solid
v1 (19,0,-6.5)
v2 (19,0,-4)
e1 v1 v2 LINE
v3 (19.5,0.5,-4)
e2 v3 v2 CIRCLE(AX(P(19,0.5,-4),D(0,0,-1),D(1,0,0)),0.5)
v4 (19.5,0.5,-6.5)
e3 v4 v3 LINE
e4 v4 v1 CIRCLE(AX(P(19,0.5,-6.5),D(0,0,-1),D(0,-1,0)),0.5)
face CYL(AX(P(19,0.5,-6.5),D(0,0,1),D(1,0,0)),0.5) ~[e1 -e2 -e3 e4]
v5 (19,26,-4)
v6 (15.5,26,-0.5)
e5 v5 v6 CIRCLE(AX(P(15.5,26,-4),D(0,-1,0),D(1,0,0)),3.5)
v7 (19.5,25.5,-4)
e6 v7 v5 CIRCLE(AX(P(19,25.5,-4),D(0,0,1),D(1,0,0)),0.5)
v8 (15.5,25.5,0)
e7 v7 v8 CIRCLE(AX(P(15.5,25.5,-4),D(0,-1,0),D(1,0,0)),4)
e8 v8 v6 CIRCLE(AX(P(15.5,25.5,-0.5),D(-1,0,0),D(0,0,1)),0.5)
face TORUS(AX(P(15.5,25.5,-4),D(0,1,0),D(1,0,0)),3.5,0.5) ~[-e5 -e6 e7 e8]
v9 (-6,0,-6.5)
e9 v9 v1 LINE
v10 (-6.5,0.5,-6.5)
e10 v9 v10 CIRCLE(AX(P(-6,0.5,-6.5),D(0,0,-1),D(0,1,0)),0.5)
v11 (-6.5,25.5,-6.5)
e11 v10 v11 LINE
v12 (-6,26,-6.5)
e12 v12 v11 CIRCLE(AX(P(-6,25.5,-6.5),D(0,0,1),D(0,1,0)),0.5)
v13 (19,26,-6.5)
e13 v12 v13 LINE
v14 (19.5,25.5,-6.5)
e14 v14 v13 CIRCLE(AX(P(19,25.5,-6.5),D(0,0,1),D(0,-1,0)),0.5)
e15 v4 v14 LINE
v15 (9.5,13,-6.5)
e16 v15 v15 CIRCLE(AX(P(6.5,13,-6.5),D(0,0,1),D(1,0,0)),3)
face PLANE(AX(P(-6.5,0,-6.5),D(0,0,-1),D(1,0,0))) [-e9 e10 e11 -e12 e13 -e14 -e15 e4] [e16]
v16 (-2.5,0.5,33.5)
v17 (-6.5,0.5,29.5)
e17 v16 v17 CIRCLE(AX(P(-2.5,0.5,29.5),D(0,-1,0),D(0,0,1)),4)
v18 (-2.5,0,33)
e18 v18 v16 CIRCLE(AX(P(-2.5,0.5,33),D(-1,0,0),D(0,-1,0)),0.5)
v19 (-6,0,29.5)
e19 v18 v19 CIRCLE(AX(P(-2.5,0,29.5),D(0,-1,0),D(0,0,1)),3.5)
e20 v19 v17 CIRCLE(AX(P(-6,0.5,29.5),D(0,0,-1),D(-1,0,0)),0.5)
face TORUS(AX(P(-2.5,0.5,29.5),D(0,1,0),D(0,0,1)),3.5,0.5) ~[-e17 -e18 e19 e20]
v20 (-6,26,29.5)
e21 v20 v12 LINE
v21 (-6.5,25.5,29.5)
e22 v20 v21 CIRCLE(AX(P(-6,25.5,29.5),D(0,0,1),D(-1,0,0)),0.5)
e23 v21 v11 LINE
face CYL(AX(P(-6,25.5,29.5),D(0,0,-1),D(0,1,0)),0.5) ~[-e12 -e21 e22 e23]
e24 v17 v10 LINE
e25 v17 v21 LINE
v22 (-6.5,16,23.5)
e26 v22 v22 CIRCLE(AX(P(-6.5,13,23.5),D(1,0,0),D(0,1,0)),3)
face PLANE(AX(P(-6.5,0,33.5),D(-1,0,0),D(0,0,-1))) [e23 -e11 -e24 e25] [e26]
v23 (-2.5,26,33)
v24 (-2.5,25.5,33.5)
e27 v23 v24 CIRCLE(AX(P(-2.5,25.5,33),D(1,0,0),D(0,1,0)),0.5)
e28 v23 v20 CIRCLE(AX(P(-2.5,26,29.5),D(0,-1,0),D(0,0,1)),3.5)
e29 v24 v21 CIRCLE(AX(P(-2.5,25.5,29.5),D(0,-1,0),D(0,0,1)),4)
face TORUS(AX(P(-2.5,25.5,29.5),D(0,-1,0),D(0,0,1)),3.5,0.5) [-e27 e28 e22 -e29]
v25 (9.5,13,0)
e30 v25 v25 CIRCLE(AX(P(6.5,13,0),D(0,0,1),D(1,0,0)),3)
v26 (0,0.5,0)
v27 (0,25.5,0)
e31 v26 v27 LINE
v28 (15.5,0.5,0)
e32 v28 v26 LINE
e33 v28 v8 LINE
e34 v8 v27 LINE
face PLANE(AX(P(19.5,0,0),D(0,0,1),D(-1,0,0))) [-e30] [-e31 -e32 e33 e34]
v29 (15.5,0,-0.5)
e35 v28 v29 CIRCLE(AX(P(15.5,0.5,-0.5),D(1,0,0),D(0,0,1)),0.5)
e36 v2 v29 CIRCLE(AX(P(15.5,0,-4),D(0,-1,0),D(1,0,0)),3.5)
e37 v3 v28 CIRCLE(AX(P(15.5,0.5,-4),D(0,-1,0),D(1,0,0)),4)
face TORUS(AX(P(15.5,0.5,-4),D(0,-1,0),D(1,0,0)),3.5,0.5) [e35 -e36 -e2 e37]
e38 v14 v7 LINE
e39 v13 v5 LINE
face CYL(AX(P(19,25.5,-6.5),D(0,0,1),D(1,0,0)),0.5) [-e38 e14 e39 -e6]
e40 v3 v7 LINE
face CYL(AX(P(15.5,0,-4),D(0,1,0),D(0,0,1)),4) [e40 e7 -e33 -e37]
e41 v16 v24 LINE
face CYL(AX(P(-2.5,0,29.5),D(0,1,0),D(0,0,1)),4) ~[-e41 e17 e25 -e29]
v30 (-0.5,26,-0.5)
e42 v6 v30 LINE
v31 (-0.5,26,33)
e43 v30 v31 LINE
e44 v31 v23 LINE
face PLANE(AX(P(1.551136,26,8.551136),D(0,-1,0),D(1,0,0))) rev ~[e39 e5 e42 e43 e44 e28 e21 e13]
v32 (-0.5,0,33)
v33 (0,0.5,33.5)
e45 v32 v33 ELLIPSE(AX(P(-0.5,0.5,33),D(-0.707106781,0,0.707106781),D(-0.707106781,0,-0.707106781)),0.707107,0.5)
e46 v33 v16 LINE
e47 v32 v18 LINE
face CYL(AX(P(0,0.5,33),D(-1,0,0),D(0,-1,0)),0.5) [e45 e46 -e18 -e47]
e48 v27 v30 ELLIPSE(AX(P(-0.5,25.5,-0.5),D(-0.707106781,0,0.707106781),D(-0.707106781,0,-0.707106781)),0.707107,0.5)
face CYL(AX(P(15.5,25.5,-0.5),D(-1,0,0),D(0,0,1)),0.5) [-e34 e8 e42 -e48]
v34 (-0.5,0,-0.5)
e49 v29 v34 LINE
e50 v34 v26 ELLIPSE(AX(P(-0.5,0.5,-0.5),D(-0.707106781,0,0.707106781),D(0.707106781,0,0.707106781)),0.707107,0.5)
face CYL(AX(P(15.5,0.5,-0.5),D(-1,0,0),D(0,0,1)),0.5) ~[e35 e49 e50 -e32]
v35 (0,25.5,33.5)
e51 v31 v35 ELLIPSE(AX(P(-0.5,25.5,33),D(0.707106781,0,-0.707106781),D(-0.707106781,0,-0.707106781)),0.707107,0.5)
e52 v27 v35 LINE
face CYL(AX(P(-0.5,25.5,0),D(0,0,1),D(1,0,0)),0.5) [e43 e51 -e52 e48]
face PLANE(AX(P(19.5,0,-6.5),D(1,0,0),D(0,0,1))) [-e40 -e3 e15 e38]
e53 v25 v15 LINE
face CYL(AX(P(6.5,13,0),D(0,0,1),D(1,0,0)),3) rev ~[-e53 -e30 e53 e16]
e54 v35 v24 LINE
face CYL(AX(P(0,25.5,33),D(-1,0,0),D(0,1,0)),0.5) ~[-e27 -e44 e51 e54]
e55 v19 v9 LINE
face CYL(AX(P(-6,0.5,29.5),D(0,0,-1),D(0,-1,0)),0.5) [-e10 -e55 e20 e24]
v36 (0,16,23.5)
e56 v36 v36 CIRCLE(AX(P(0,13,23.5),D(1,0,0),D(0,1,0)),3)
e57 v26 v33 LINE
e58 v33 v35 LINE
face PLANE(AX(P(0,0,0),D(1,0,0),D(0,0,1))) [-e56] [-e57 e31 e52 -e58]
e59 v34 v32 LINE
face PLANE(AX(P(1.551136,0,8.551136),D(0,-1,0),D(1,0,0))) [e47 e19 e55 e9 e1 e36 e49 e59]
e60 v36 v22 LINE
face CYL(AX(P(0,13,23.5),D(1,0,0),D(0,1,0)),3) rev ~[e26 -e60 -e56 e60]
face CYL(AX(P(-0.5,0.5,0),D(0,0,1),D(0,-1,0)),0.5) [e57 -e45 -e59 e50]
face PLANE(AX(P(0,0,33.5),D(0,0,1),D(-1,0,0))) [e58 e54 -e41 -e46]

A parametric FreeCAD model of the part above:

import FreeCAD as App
import Part
import Sketcher
from FreeCAD import Vector


def edges_at(feature, points):
    """Names of the edges that pass closest to the given points."""
    edges = feature.Shape.Edges
    near = lambda p: min(range(len(edges)), key=lambda i: edges[i].distToShape(Part.Vertex(*p))[0])
    return sorted({f"Edge{near(p) + 1}" for p in points})


def add_polygon(sketch, points):
    """Adds a closed chain of lines whose ends are joined by coincident constraints."""
    first, n = sketch.GeometryCount, len(points)
    for a, b in zip(points, points[1:] + points[:1]):
        sketch.addGeometry(Part.LineSegment(App.Vector(*a, 0), App.Vector(*b, 0)), False)
    for i in range(n):
        sketch.addConstraint(Sketcher.Constraint("Coincident", first + i, 2, first + (i + 1) % n, 1))

doc = App.newDocument("Part")
params = doc.addObject("Spreadsheet::Sheet", "Params")
for row, (alias, value) in enumerate([
    ("sketch1_width", "26 mm"),
    ("sketch1_height", "40 mm"),
    ("sketch1_width2", "6.5 mm"),
    ("pad1_length", "26 mm"),
    ("sketch2_diameter", "6 mm"),
    ("pocket1_length", "25 mm"),
    ("sketch3_diameter", "6 mm"),
    ("pocket2_length", "25 mm"),
    ("fillet_radius", "4 mm"),
    ("fillet2_radius", "0.5 mm"),
], start=1):
    params.set(f"A{row}", alias)
    params.set(f"B{row}", "=" + value)
    params.setAlias(f"B{row}", alias)

body = doc.addObject("PartDesign::Body", "Body")

sketch1 = doc.addObject("Sketcher::SketchObject", "Sketch")
body.addObject(sketch1)
sketch1.AttachmentSupport = (doc.XZ_Plane, [""])
sketch1.MapMode = "FlatFace"
add_polygon(sketch1, [(0, 0), (0, 34), (-6, 34), (-6, -6), (20, -6), (20, 0)])
sketch1.addConstraint([
    Sketcher.Constraint("Vertical", 0),
    Sketcher.Constraint("Horizontal", 1),
    Sketcher.Constraint("Vertical", 2),
    Sketcher.Constraint("Horizontal", 3),
    Sketcher.Constraint("Vertical", 4),
    Sketcher.Constraint("Horizontal", 5),
    Sketcher.Constraint("Coincident", 5, 2, -1, 1),
    Sketcher.Constraint("Equal", 1, 4),
    Sketcher.Constraint("DistanceX", 3, 1, 3, 2, 26.0),
    Sketcher.Constraint("DistanceY", 2, 2, 2, 1, 40.0),
    Sketcher.Constraint("DistanceX", 1, 2, 1, 1, 6.5),
])
sketch1.setExpression("Constraints[14]", "Params.sketch1_width")
sketch1.setExpression("Constraints[15]", "Params.sketch1_height")
sketch1.setExpression("Constraints[16]", "Params.sketch1_width2")
pad1 = doc.addObject("PartDesign::Pad", "Pad")
body.addObject(pad1)
pad1.Profile = sketch1
pad1.setExpression("Length", "Params.pad1_length")
pad1.Reversed = True

sketch2 = doc.addObject("Sketcher::SketchObject", "Sketch001")
body.addObject(sketch2)
sketch2.AttachmentSupport = (doc.YZ_Plane, [""])
sketch2.MapMode = "FlatFace"
sketch2.addGeometry(Part.Circle(Vector(13, 23.5, 0), Vector(0, 0, 1), 3), False)
sketch2.addConstraint([
    Sketcher.Constraint("Diameter", 0, 6.0),
    Sketcher.Constraint("DistanceX", -1, 1, 0, 3, 13.0),
    Sketcher.Constraint("DistanceY", -1, 1, 0, 3, 23.5),
])
sketch2.setExpression("Constraints[0]", "Params.sketch2_diameter")
pocket1 = doc.addObject("PartDesign::Pocket", "Pocket")
body.addObject(pocket1)
pocket1.Profile = sketch2
pocket1.setExpression("Length", "Params.pocket1_length")

sketch3 = doc.addObject("Sketcher::SketchObject", "Sketch002")
body.addObject(sketch3)
sketch3.AttachmentSupport = (doc.XY_Plane, [""])
sketch3.MapMode = "FlatFace"
sketch3.addGeometry(Part.Circle(Vector(6.5, 13, 0), Vector(0, 0, 1), 3), False)
sketch3.addConstraint([
    Sketcher.Constraint("Diameter", 0, 6.0),
    Sketcher.Constraint("DistanceY", -1, 1, 0, 3, 13.0),
    Sketcher.Constraint("DistanceX", -1, 1, 0, 3, 6.5),
])
sketch3.setExpression("Constraints[0]", "Params.sketch3_diameter")
pocket2 = doc.addObject("PartDesign::Pocket", "Pocket001")
body.addObject(pocket2)
pocket2.Profile = sketch3
pocket2.setExpression("Length", "Params.pocket2_length")
doc.recompute()

fillet = doc.addObject("PartDesign::Fillet", "Fillet")
body.addObject(fillet)
fillet.Base = (pocket2, edges_at(pocket2, [(-6.5, 13, 33.5), (19.5, 13, 0)]))
fillet.setExpression("Radius", "Params.fillet_radius")
doc.recompute()

fillet2 = doc.addObject("PartDesign::Fillet", "Fillet001")
body.addObject(fillet2)
fillet2.Base = (fillet, edges_at(fillet, [
    (-6.5, 0, 11.5),
    (-6.5, 26, 11.5),
    (7.75, 26, 0),
    (0, 26, 16.75),
    (0, 0, 16.75),
    (7.75, 0, 0),
]))
fillet2.setExpression("Radius", "Params.fillet2_radius")

doc.recompute()
